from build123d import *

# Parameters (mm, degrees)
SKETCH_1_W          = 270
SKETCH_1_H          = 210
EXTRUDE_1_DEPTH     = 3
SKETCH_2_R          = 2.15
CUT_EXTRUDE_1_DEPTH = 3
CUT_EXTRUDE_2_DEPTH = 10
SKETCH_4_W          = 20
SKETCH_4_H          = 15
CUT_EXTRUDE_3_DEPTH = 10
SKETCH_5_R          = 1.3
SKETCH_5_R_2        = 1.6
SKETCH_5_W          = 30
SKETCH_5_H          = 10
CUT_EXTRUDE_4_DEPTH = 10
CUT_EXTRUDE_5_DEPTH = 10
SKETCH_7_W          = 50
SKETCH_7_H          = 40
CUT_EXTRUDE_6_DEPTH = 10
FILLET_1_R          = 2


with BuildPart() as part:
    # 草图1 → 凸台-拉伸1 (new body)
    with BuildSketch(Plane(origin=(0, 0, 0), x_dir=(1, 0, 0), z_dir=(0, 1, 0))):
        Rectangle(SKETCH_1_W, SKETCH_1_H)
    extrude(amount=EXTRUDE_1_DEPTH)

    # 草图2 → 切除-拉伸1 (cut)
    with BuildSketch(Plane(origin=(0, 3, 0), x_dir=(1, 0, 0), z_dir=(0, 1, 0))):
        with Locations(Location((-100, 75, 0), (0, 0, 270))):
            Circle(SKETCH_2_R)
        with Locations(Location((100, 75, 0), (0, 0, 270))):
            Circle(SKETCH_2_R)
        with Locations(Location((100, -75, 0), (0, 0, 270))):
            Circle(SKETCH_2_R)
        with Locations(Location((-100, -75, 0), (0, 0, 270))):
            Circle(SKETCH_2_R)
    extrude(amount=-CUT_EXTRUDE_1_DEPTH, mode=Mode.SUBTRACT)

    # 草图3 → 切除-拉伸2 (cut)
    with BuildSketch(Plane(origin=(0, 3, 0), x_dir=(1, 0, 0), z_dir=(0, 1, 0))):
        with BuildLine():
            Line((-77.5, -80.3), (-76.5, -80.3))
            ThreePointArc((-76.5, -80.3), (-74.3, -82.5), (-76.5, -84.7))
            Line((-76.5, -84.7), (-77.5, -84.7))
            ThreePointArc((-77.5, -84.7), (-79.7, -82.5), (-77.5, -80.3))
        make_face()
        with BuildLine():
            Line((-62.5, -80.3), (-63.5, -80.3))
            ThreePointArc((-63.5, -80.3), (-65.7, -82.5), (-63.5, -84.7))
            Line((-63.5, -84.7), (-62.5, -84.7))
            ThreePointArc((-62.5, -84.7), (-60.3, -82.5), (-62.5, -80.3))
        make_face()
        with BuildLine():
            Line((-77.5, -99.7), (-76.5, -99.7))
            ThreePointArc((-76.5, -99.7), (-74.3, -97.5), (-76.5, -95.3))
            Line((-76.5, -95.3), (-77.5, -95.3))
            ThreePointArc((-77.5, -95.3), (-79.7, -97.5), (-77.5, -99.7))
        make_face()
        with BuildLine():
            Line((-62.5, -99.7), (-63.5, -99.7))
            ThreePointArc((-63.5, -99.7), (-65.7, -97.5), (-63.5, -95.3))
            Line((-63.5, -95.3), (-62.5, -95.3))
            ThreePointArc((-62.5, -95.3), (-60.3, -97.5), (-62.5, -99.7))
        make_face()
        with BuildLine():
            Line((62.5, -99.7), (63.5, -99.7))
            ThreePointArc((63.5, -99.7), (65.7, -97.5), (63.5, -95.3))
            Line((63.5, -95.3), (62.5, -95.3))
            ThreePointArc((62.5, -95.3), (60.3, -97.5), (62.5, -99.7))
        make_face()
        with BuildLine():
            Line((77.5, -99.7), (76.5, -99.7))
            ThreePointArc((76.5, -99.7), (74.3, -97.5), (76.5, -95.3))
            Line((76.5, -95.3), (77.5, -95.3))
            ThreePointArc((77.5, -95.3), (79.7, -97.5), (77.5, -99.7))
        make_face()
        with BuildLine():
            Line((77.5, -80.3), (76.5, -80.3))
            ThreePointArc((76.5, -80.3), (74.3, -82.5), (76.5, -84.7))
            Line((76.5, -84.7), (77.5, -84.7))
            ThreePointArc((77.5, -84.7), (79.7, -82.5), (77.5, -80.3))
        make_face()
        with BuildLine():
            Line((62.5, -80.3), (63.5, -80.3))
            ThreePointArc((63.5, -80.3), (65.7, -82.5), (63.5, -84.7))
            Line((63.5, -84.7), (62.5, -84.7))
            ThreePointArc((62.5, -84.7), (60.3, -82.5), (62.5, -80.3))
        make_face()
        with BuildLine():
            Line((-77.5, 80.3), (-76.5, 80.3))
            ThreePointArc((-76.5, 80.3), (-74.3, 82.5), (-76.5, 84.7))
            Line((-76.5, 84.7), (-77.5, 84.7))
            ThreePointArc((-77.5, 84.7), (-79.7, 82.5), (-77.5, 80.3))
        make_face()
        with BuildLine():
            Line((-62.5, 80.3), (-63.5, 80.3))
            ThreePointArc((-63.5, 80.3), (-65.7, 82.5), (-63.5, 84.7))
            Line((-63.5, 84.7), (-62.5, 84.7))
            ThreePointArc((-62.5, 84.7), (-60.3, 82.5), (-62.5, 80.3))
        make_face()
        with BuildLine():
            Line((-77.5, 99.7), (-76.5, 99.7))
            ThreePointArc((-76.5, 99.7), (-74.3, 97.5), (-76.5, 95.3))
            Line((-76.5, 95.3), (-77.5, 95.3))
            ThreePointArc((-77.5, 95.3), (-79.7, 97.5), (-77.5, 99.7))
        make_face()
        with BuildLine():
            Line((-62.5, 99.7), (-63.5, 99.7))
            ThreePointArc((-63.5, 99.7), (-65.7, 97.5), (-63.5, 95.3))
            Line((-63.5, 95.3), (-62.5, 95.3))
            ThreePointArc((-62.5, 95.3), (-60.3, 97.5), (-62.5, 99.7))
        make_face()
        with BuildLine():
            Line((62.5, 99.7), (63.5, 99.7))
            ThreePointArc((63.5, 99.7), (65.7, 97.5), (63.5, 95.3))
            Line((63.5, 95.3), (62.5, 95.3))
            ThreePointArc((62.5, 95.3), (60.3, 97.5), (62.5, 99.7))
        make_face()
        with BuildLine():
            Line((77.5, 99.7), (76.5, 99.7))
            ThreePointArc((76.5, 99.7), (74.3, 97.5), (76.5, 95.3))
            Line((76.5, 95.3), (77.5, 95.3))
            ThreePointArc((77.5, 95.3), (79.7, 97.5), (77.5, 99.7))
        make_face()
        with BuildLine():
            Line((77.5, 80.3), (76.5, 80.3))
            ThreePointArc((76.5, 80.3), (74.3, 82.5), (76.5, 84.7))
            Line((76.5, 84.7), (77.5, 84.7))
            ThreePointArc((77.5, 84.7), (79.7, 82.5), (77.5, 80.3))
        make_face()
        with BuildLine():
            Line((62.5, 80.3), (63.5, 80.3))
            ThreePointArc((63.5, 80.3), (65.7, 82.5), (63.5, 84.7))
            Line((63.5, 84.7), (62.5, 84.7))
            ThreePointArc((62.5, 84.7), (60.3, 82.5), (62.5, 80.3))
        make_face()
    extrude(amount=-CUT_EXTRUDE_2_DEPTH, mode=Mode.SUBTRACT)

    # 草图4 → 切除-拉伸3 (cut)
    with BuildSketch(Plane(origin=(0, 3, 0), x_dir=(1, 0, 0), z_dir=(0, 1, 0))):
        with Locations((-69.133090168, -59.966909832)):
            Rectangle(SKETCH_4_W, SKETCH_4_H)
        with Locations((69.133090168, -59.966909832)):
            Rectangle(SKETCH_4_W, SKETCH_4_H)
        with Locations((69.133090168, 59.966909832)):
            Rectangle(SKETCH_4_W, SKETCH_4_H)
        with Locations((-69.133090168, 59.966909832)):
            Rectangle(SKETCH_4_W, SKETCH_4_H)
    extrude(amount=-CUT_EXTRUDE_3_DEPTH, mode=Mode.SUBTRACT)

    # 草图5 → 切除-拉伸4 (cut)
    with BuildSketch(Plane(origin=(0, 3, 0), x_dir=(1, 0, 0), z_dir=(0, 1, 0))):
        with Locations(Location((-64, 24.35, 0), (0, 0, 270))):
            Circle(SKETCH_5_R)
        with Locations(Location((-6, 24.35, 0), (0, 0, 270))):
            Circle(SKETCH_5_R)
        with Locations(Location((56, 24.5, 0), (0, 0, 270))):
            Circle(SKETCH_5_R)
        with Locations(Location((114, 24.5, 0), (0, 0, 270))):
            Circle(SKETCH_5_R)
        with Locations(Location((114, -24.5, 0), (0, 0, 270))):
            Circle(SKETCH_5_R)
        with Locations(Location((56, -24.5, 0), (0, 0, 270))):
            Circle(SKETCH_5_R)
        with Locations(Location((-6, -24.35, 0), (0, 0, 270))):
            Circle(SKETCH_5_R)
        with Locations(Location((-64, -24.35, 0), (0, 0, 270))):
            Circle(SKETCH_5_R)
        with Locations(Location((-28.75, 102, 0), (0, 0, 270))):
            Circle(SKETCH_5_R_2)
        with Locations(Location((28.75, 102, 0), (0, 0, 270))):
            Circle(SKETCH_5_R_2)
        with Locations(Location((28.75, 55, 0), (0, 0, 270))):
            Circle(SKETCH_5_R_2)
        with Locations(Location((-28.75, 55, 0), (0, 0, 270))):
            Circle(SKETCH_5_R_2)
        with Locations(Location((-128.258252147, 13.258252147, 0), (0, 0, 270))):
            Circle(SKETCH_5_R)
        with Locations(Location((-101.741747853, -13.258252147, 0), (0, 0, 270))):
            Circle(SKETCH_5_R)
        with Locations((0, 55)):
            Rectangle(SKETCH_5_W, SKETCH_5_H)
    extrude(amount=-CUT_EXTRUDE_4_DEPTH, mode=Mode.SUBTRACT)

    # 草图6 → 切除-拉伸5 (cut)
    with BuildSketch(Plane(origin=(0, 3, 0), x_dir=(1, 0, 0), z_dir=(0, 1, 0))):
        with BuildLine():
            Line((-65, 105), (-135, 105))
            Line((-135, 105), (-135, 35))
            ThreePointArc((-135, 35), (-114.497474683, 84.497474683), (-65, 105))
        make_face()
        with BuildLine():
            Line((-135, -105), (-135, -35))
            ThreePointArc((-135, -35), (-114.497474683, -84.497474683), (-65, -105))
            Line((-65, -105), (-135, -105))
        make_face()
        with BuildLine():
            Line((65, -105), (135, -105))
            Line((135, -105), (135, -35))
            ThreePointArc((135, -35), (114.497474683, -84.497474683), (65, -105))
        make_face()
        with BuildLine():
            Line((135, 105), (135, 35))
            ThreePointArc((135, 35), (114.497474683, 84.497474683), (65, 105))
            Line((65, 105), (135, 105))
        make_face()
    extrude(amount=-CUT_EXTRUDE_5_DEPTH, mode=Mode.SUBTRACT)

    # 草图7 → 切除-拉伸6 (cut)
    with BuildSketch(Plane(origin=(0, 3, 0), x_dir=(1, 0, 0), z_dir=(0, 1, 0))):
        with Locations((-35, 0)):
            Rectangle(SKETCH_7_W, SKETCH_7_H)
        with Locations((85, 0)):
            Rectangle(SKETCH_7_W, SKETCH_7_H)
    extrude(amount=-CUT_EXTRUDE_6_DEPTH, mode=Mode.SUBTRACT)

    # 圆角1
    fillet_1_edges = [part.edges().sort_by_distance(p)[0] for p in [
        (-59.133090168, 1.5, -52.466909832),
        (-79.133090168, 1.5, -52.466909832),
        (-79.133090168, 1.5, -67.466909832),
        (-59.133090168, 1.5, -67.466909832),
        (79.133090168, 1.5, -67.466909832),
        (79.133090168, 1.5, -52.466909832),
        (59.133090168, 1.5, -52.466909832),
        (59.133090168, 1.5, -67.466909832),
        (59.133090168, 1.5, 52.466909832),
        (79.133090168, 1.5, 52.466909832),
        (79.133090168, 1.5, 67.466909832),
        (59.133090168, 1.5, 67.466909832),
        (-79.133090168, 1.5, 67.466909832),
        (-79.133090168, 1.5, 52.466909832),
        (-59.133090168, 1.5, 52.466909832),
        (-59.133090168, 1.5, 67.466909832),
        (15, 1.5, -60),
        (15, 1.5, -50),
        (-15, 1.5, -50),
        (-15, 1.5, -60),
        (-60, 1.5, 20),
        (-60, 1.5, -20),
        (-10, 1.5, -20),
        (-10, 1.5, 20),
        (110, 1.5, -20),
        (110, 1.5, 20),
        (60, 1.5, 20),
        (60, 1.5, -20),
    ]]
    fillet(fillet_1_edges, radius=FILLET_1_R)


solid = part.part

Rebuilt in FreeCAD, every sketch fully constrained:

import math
import FreeCAD as App
import Part
import Sketcher


def edges_at(feature, points):
    """Names of the edges that pass closest to the given points."""
    edges = feature.Shape.Edges
    near = lambda p: min(range(len(edges)), key=lambda i: edges[i].distToShape(Part.Vertex(*p))[0])
    return sorted({f"Edge{near(p) + 1}" for p in points})


def add_polygon(sketch, points):
    """Adds a closed chain of lines whose ends are joined by coincident constraints."""
    first, n = sketch.GeometryCount, len(points)
    for a, b in zip(points, points[1:] + points[:1]):
        sketch.addGeometry(Part.LineSegment(App.Vector(*a, 0), App.Vector(*b, 0)), False)
    for i in range(n):
        sketch.addConstraint(Sketcher.Constraint("Coincident", first + i, 2, first + (i + 1) % n, 1))

doc = App.newDocument("Part")
body = doc.addObject("PartDesign::Body", "Body")

sketch1 = body.newObject("Sketcher::SketchObject", "Sketch")
sketch1.AttachmentSupport = (doc.getObject("XZ_Plane"), [""])
sketch1.MapMode = "FlatFace"
add_polygon(sketch1, [(-135, -105), (-135, 105), (135, 105), (135, -105)])
sketch1.addConstraint([
    Sketcher.Constraint("Vertical", 0),
    Sketcher.Constraint("Horizontal", 1),
    Sketcher.Constraint("Vertical", 2),
    Sketcher.Constraint("Horizontal", 3),
    Sketcher.Constraint("Symmetric", 0, 2, 2, 2, -1, 1),
    Sketcher.Constraint("DistanceX", 1, 1, 1, 2, 270.0),
    Sketcher.Constraint("DistanceY", 0, 1, 0, 2, 210.0),
])
pad1 = body.newObject("PartDesign::Pad", "Pad")
pad1.Profile = sketch1
pad1.Length = 3
pad1.Reversed = True

sketch2 = body.newObject("Sketcher::SketchObject", "Sketch001")
sketch2.AttachmentSupport = (doc.getObject("XZ_Plane"), [""])
sketch2.MapMode = "FlatFace"
sketch2.AttachmentOffset = App.Placement(App.Vector(0, 0, -3), App.Rotation())
sketch2.addGeometry([
    Part.Circle(App.Vector(-100, -75, 0), App.Vector(0, 0, 1), 2.1),
    Part.Circle(App.Vector(100, -75, 0), App.Vector(0, 0, 1), 2.1),
    Part.Circle(App.Vector(100, 75, 0), App.Vector(0, 0, 1), 2.1),
    Part.Circle(App.Vector(-100, 75, 0), App.Vector(0, 0, 1), 2.1),
], False)
sketch2.addConstraint([
    Sketcher.Constraint("Equal", 0, 1),
    Sketcher.Constraint("Equal", 1, 2),
    Sketcher.Constraint("Equal", 2, 3),
    Sketcher.Constraint("Symmetric", 0, 3, 2, 3, -1, 1),
    Sketcher.Constraint("Symmetric", 1, 3, 3, 3, -1, 1),
    Sketcher.Constraint("Symmetric", 0, 3, 1, 3, -2),
    Sketcher.Constraint("Diameter", 0, 4.3),
    Sketcher.Constraint("DistanceX", 0, 3, -1, 1, 100.0),
    Sketcher.Constraint("DistanceY", 0, 3, -1, 1, 75.0),
])
pocket1 = body.newObject("PartDesign::Pocket", "Pocket")
pocket1.Profile = sketch2
pocket1.Length = 3
pocket1.Reversed = True

sketch3 = body.newObject("Sketcher::SketchObject", "Sketch002")
sketch3.AttachmentSupport = (doc.getObject("XZ_Plane"), [""])
sketch3.MapMode = "FlatFace"
sketch3.AttachmentOffset = App.Placement(App.Vector(0, 0, -3), App.Rotation())
sketch3.addGeometry([
    Part.LineSegment(App.Vector(-76.5, 80.3, 0), App.Vector(-77.5, 80.3, 0)),
    Part.ArcOfCircle(Part.Circle(App.Vector(-77.5, 82.5, 0), App.Vector(0, 0, 1), 2.2), math.radians(90), math.radians(270)),
    Part.LineSegment(App.Vector(-77.5, 84.7, 0), App.Vector(-76.5, 84.7, 0)),
    Part.ArcOfCircle(Part.Circle(App.Vector(-76.5, 82.5, 0), App.Vector(0, 0, 1), 2.2), math.radians(-90), math.radians(90)),
    Part.LineSegment(App.Vector(-62.5, 80.3, 0), App.Vector(-63.5, 80.3, 0)),
    Part.ArcOfCircle(Part.Circle(App.Vector(-63.5, 82.5, 0), App.Vector(0, 0, 1), 2.2), math.radians(90), math.radians(270)),
    Part.LineSegment(App.Vector(-63.5, 84.7, 0), App.Vector(-62.5, 84.7, 0)),
    Part.ArcOfCircle(Part.Circle(App.Vector(-62.5, 82.5, 0), App.Vector(0, 0, 1), 2.2), math.radians(-90), math.radians(90)),
    Part.LineSegment(App.Vector(-77.5, 99.7, 0), App.Vector(-76.5, 99.7, 0)),
    Part.ArcOfCircle(Part.Circle(App.Vector(-76.5, 97.5, 0), App.Vector(0, 0, 1), 2.2), math.radians(-90), math.radians(90)),
    Part.LineSegment(App.Vector(-76.5, 95.3, 0), App.Vector(-77.5, 95.3, 0)),
    Part.ArcOfCircle(Part.Circle(App.Vector(-77.5, 97.5, 0), App.Vector(0, 0, 1), 2.2), math.radians(90), math.radians(270)),
    Part.LineSegment(App.Vector(-63.5, 99.7, 0), App.Vector(-62.5, 99.7, 0)),
    Part.ArcOfCircle(Part.Circle(App.Vector(-62.5, 97.5, 0), App.Vector(0, 0, 1), 2.2), math.radians(-90), math.radians(90)),
    Part.LineSegment(App.Vector(-62.5, 95.3, 0), App.Vector(-63.5, 95.3, 0)),
    Part.ArcOfCircle(Part.Circle(App.Vector(-63.5, 97.5, 0), App.Vector(0, 0, 1), 2.2), math.radians(90), math.radians(270)),
    Part.LineSegment(App.Vector(62.5, 99.7, 0), App.Vector(63.5, 99.7, 0)),
    Part.ArcOfCircle(Part.Circle(App.Vector(63.5, 97.5, 0), App.Vector(0, 0, 1), 2.2), math.radians(-90), math.radians(90)),
    Part.LineSegment(App.Vector(63.5, 95.3, 0), App.Vector(62.5, 95.3, 0)),
    Part.ArcOfCircle(Part.Circle(App.Vector(62.5, 97.5, 0), App.Vector(0, 0, 1), 2.2), math.radians(90), math.radians(270)),
    Part.LineSegment(App.Vector(76.5, 99.7, 0), App.Vector(77.5, 99.7, 0)),
    Part.ArcOfCircle(Part.Circle(App.Vector(77.5, 97.5, 0), App.Vector(0, 0, 1), 2.2), math.radians(-90), math.radians(90)),
    Part.LineSegment(App.Vector(77.5, 95.3, 0), App.Vector(76.5, 95.3, 0)),
    Part.ArcOfCircle(Part.Circle(App.Vector(76.5, 97.5, 0), App.Vector(0, 0, 1), 2.2), math.radians(90), math.radians(270)),
    Part.LineSegment(App.Vector(77.5, 80.3, 0), App.Vector(76.5, 80.3, 0)),
    Part.ArcOfCircle(Part.Circle(App.Vector(76.5, 82.5, 0), App.Vector(0, 0, 1), 2.2), math.radians(90), math.radians(270)),
    Part.LineSegment(App.Vector(76.5, 84.7, 0), App.Vector(77.5, 84.7, 0)),
    Part.ArcOfCircle(Part.Circle(App.Vector(77.5, 82.5, 0), App.Vector(0, 0, 1), 2.2), math.radians(-90), math.radians(90)),
    Part.LineSegment(App.Vector(63.5, 80.3, 0), App.Vector(62.5, 80.3, 0)),
    Part.ArcOfCircle(Part.Circle(App.Vector(62.5, 82.5, 0), App.Vector(0, 0, 1), 2.2), math.radians(90), math.radians(270)),
    Part.LineSegment(App.Vector(62.5, 84.7, 0), App.Vector(63.5, 84.7, 0)),
    Part.ArcOfCircle(Part.Circle(App.Vector(63.5, 82.5, 0), App.Vector(0, 0, 1), 2.2), math.radians(-90), math.radians(90)),
    Part.LineSegment(App.Vector(-77.5, -80.3, 0), App.Vector(-76.5, -80.3, 0)),
    Part.ArcOfCircle(Part.Circle(App.Vector(-76.5, -82.5, 0), App.Vector(0, 0, 1), 2.2), math.radians(-90), math.radians(90)),
    Part.LineSegment(App.Vector(-76.5, -84.7, 0), App.Vector(-77.5, -84.7, 0)),
    Part.ArcOfCircle(Part.Circle(App.Vector(-77.5, -82.5, 0), App.Vector(0, 0, 1), 2.2), math.radians(90), math.radians(270)),
    Part.LineSegment(App.Vector(-63.5, -80.3, 0), App.Vector(-62.5, -80.3, 0)),
    Part.ArcOfCircle(Part.Circle(App.Vector(-62.5, -82.5, 0), App.Vector(0, 0, 1), 2.2), math.radians(-90), math.radians(90)),
    Part.LineSegment(App.Vector(-62.5, -84.7, 0), App.Vector(-63.5, -84.7, 0)),
    Part.ArcOfCircle(Part.Circle(App.Vector(-63.5, -82.5, 0), App.Vector(0, 0, 1), 2.2), math.radians(90), math.radians(270)),
    Part.LineSegment(App.Vector(-76.5, -99.7, 0), App.Vector(-77.5, -99.7, 0)),
    Part.ArcOfCircle(Part.Circle(App.Vector(-77.5, -97.5, 0), App.Vector(0, 0, 1), 2.2), math.radians(90), math.radians(270)),
    Part.LineSegment(App.Vector(-77.5, -95.3, 0), App.Vector(-76.5, -95.3, 0)),
    Part.ArcOfCircle(Part.Circle(App.Vector(-76.5, -97.5, 0), App.Vector(0, 0, 1), 2.2), math.radians(-90), math.radians(90)),
    Part.LineSegment(App.Vector(-62.5, -99.7, 0), App.Vector(-63.5, -99.7, 0)),
    Part.ArcOfCircle(Part.Circle(App.Vector(-63.5, -97.5, 0), App.Vector(0, 0, 1), 2.2), math.radians(90), math.radians(270)),
    Part.LineSegment(App.Vector(-63.5, -95.3, 0), App.Vector(-62.5, -95.3, 0)),
    Part.ArcOfCircle(Part.Circle(App.Vector(-62.5, -97.5, 0), App.Vector(0, 0, 1), 2.2), math.radians(-90), math.radians(90)),
    Part.LineSegment(App.Vector(63.5, -99.7, 0), App.Vector(62.5, -99.7, 0)),
    Part.ArcOfCircle(Part.Circle(App.Vector(62.5, -97.5, 0), App.Vector(0, 0, 1), 2.2), math.radians(90), math.radians(270)),
    Part.LineSegment(App.Vector(62.5, -95.3, 0), App.Vector(63.5, -95.3, 0)),
    Part.ArcOfCircle(Part.Circle(App.Vector(63.5, -97.5, 0), App.Vector(0, 0, 1), 2.2), math.radians(-90), math.radians(90)),
    Part.LineSegment(App.Vector(77.5, -99.7, 0), App.Vector(76.5, -99.7, 0)),
    Part.ArcOfCircle(Part.Circle(App.Vector(76.5, -97.5, 0), App.Vector(0, 0, 1), 2.2), math.radians(90), math.radians(270)),
    Part.LineSegment(App.Vector(76.5, -95.3, 0), App.Vector(77.5, -95.3, 0)),
    Part.ArcOfCircle(Part.Circle(App.Vector(77.5, -97.5, 0), App.Vector(0, 0, 1), 2.2), math.radians(-90), math.radians(90)),
    Part.LineSegment(App.Vector(76.5, -80.3, 0), App.Vector(77.5, -80.3, 0)),
    Part.ArcOfCircle(Part.Circle(App.Vector(77.5, -82.5, 0), App.Vector(0, 0, 1), 2.2), math.radians(-90), math.radians(90)),
    Part.LineSegment(App.Vector(77.5, -84.7, 0), App.Vector(76.5, -84.7, 0)),
    Part.ArcOfCircle(Part.Circle(App.Vector(76.5, -82.5, 0), App.Vector(0, 0, 1), 2.2), math.radians(90), math.radians(270)),
    Part.LineSegment(App.Vector(62.5, -80.3, 0), App.Vector(63.5, -80.3, 0)),
    Part.ArcOfCircle(Part.Circle(App.Vector(63.5, -82.5, 0), App.Vector(0, 0, 1), 2.2), math.radians(-90), math.radians(90)),
    Part.LineSegment(App.Vector(63.5, -84.7, 0), App.Vector(62.5, -84.7, 0)),
    Part.ArcOfCircle(Part.Circle(App.Vector(62.5, -82.5, 0), App.Vector(0, 0, 1), 2.2), math.radians(90), math.radians(270)),
], False)
sketch3.addConstraint([
    Sketcher.Constraint("Tangent", 0, 2, 1, 2),
    Sketcher.Constraint("Tangent", 1, 1, 2, 1),
    Sketcher.Constraint("Tangent", 2, 2, 3, 2),
    Sketcher.Constraint("Tangent", 3, 1, 0, 1),
    Sketcher.Constraint("Tangent", 4, 2, 5, 2),
    Sketcher.Constraint("Tangent", 5, 1, 6, 1),
    Sketcher.Constraint("Tangent", 6, 2, 7, 2),
    Sketcher.Constraint("Tangent", 7, 1, 4, 1),
    Sketcher.Constraint("Tangent", 8, 2, 9, 2),
    Sketcher.Constraint("Tangent", 9, 1, 10, 1),
    Sketcher.Constraint("Tangent", 10, 2, 11, 2),
    Sketcher.Constraint("Tangent", 11, 1, 8, 1),
    Sketcher.Constraint("Tangent", 12, 2, 13, 2),
    Sketcher.Constraint("Tangent", 13, 1, 14, 1),
    Sketcher.Constraint("Tangent", 14, 2, 15, 2),
    Sketcher.Constraint("Tangent", 15, 1, 12, 1),
    Sketcher.Constraint("Tangent", 16, 2, 17, 2),
    Sketcher.Constraint("Tangent", 17, 1, 18, 1),
    Sketcher.Constraint("Tangent", 18, 2, 19, 2),
    Sketcher.Constraint("Tangent", 19, 1, 16, 1),
    Sketcher.Constraint("Tangent", 20, 2, 21, 2),
    Sketcher.Constraint("Tangent", 21, 1, 22, 1),
    Sketcher.Constraint("Tangent", 22, 2, 23, 2),
    Sketcher.Constraint("Tangent", 23, 1, 20, 1),
    Sketcher.Constraint("Tangent", 24, 2, 25, 2),
    Sketcher.Constraint("Tangent", 25, 1, 26, 1),
    Sketcher.Constraint("Tangent", 26, 2, 27, 2),
    Sketcher.Constraint("Tangent", 27, 1, 24, 1),
    Sketcher.Constraint("Tangent", 28, 2, 29, 2),
    Sketcher.Constraint("Tangent", 29, 1, 30, 1),
    Sketcher.Constraint("Tangent", 30, 2, 31, 2),
    Sketcher.Constraint("Tangent", 31, 1, 28, 1),
    Sketcher.Constraint("Tangent", 32, 2, 33, 2),
    Sketcher.Constraint("Tangent", 33, 1, 34, 1),
    Sketcher.Constraint("Tangent", 34, 2, 35, 2),
    Sketcher.Constraint("Tangent", 35, 1, 32, 1),
    Sketcher.Constraint("Tangent", 36, 2, 37, 2),
    Sketcher.Constraint("Tangent", 37, 1, 38, 1),
    Sketcher.Constraint("Tangent", 38, 2, 39, 2),
    Sketcher.Constraint("Tangent", 39, 1, 36, 1),
    Sketcher.Constraint("Tangent", 40, 2, 41, 2),
    Sketcher.Constraint("Tangent", 41, 1, 42, 1),
    Sketcher.Constraint("Tangent", 42, 2, 43, 2),
    Sketcher.Constraint("Tangent", 43, 1, 40, 1),
    Sketcher.Constraint("Tangent", 44, 2, 45, 2),
    Sketcher.Constraint("Tangent", 45, 1, 46, 1),
    Sketcher.Constraint("Tangent", 46, 2, 47, 2),
    Sketcher.Constraint("Tangent", 47, 1, 44, 1),
    Sketcher.Constraint("Tangent", 48, 2, 49, 2),
    Sketcher.Constraint("Tangent", 49, 1, 50, 1),
    Sketcher.Constraint("Tangent", 50, 2, 51, 2),
    Sketcher.Constraint("Tangent", 51, 1, 48, 1),
    Sketcher.Constraint("Tangent", 52, 2, 53, 2),
    Sketcher.Constraint("Tangent", 53, 1, 54, 1),
    Sketcher.Constraint("Tangent", 54, 2, 55, 2),
    Sketcher.Constraint("Tangent", 55, 1, 52, 1),
    Sketcher.Constraint("Tangent", 56, 2, 57, 2),
    Sketcher.Constraint("Tangent", 57, 1, 58, 1),
    Sketcher.Constraint("Tangent", 58, 2, 59, 2),
    Sketcher.Constraint("Tangent", 59, 1, 56, 1),
    Sketcher.Constraint("Tangent", 60, 2, 61, 2),
    Sketcher.Constraint("Tangent", 61, 1, 62, 1),
    Sketcher.Constraint("Tangent", 62, 2, 63, 2),
    Sketcher.Constraint("Tangent", 63, 1, 60, 1),
    Sketcher.Constraint("Horizontal", 0),
    Sketcher.Constraint("Horizontal", 2),
    Sketcher.Constraint("Horizontal", 4),
    Sketcher.Constraint("Horizontal", 6),
    Sketcher.Constraint("Horizontal", 8),
    Sketcher.Constraint("Horizontal", 10),
    Sketcher.Constraint("Horizontal", 12),
    Sketcher.Constraint("Horizontal", 14),
    Sketcher.Constraint("Horizontal", 16),
    Sketcher.Constraint("Horizontal", 18),
    Sketcher.Constraint("Horizontal", 20),
    Sketcher.Constraint("Horizontal", 22),
    Sketcher.Constraint("Horizontal", 24),
    Sketcher.Constraint("Horizontal", 26),
    Sketcher.Constraint("Horizontal", 28),
    Sketcher.Constraint("Horizontal", 30),
    Sketcher.Constraint("Horizontal", 32),
    Sketcher.Constraint("Horizontal", 34),
    Sketcher.Constraint("Horizontal", 36),
    Sketcher.Constraint("Horizontal", 38),
    Sketcher.Constraint("Horizontal", 40),
    Sketcher.Constraint("Horizontal", 42),
    Sketcher.Constraint("Horizontal", 44),
    Sketcher.Constraint("Horizontal", 46),
    Sketcher.Constraint("Horizontal", 48),
    Sketcher.Constraint("Horizontal", 50),
    Sketcher.Constraint("Horizontal", 52),
    Sketcher.Constraint("Horizontal", 54),
    Sketcher.Constraint("Horizontal", 56),
    Sketcher.Constraint("Horizontal", 58),
    Sketcher.Constraint("Horizontal", 60),
    Sketcher.Constraint("Horizontal", 62),
    Sketcher.Constraint("Equal", 3, 5),
    Sketcher.Constraint("Equal", 7, 9),
    Sketcher.Constraint("Equal", 11, 13),
    Sketcher.Constraint("Equal", 15, 17),
    Sketcher.Constraint("Equal", 19, 21),
    Sketcher.Constraint("Equal", 23, 25),
    Sketcher.Constraint("Equal", 27, 29),
    Sketcher.Constraint("Equal", 31, 33),
    Sketcher.Constraint("Equal", 35, 37),
    Sketcher.Constraint("Equal", 39, 41),
    Sketcher.Constraint("Equal", 43, 45),
    Sketcher.Constraint("Equal", 47, 49),
    Sketcher.Constraint("Equal", 51, 53),
    Sketcher.Constraint("Equal", 55, 57),
    Sketcher.Constraint("Equal", 59, 61),
    Sketcher.Constraint("Symmetric", 25, 3, 33, 3, -1, 1),
    Sketcher.Constraint("Symmetric", 29, 3, 37, 3, -1, 1),
    Sketcher.Constraint("Symmetric", 21, 3, 41, 3, -1, 1),
    Sketcher.Constraint("Symmetric", 17, 3, 45, 3, -1, 1),
    Sketcher.Constraint("Symmetric", 13, 3, 49, 3, -1, 1),
    Sketcher.Constraint("Symmetric", 9, 3, 53, 3, -1, 1),
    Sketcher.Constraint("Symmetric", 1, 3, 57, 3, -1, 1),
    Sketcher.Constraint("Symmetric", 5, 3, 61, 3, -1, 1),
    Sketcher.Constraint("Symmetric", 15, 3, 17, 3, -2),
    Sketcher.Constraint("Symmetric", 11, 3, 21, 3, -2),
    Sketcher.Constraint("Symmetric", 3, 3, 25, 3, -2),
    Sketcher.Constraint("Symmetric", 7, 3, 29, 3, -2),
    Sketcher.Constraint("Horizontal", 3, 3, 5, 3),
    Sketcher.Constraint("Horizontal", 11, 3, 13, 3),
    Sketcher.Constraint("Vertical", 3, 3, 9, 3),
    Sketcher.Constraint("Vertical", 1, 3, 11, 3),
    Sketcher.Constraint("Vertical", 7, 3, 13, 3),
    Sketcher.Constraint("Vertical", 5, 3, 15, 3),
    Sketcher.Constraint("Vertical", 23, 3, 25, 3),
    Sketcher.Constraint("Vertical", 21, 3, 27, 3),
    Sketcher.Constraint("Vertical", 19, 3, 29, 3),
    Sketcher.Constraint("Vertical", 17, 3, 31, 3),
    Sketcher.Constraint("Vertical", 11, 3, 35, 3),
    Sketcher.Constraint("Vertical", 15, 3, 39, 3),
    Sketcher.Constraint("Vertical", 33, 3, 43, 3),
    Sketcher.Constraint("Vertical", 37, 3, 47, 3),
    Sketcher.Constraint("Vertical", 31, 3, 51, 3),
    Sketcher.Constraint("Vertical", 27, 3, 55, 3),
    Sketcher.Constraint("Vertical", 53, 3, 59, 3),
    Sketcher.Constraint("Vertical", 49, 3, 63, 3),
    Sketcher.Constraint("Equal", 2, 4),
    Sketcher.Constraint("Radius", 1, 2.2),
    Sketcher.Constraint("DistanceX", 0, 2, 0, 1, 1.0),
    Sketcher.Constraint("DistanceX", 1, 3, -1, 1, 77.5),
    Sketcher.Constraint("DistanceY", -1, 1, 1, 3, 82.5),
    Sketcher.Constraint("DistanceX", 5, 3, -1, 1, 63.5),
    Sketcher.Constraint("DistanceY", -1, 1, 9, 3, 97.5),
])
pocket2 = body.newObject("PartDesign::Pocket", "Pocket001")
pocket2.Profile = sketch3
pocket2.Length = 10
pocket2.Reversed = True

sketch4 = body.newObject("Sketcher::SketchObject", "Sketch003")
sketch4.AttachmentSupport = (doc.getObject("XZ_Plane"), [""])
sketch4.MapMode = "FlatFace"
sketch4.AttachmentOffset = App.Placement(App.Vector(0, 0, -3), App.Rotation())
add_polygon(sketch4, [(-79, 52), (-79, 67), (-59, 67), (-59, 52)])
add_polygon(sketch4, [(59, 52), (59, 67), (79, 67), (79, 52)])
add_polygon(sketch4, [(59, -67), (59, -52), (79, -52), (79, -67)])
add_polygon(sketch4, [(-79, -67), (-79, -52), (-59, -52), (-59, -67)])
sketch4.addConstraint([
    Sketcher.Constraint("Vertical", 0),
    Sketcher.Constraint("Horizontal", 1),
    Sketcher.Constraint("Vertical", 2),
    Sketcher.Constraint("Horizontal", 3),
    Sketcher.Constraint("Vertical", 4),
    Sketcher.Constraint("Horizontal", 5),
    Sketcher.Constraint("Vertical", 6),
    Sketcher.Constraint("Horizontal", 7),
    Sketcher.Constraint("Vertical", 8),
    Sketcher.Constraint("Horizontal", 9),
    Sketcher.Constraint("Vertical", 10),
    Sketcher.Constraint("Horizontal", 11),
    Sketcher.Constraint("Vertical", 12),
    Sketcher.Constraint("Horizontal", 13),
    Sketcher.Constraint("Vertical", 14),
    Sketcher.Constraint("Horizontal", 15),
    Sketcher.Constraint("Symmetric", 2, 2, 8, 2, -1, 1),
    Sketcher.Constraint("Symmetric", 0, 2, 10, 2, -1, 1),
    Sketcher.Constraint("Symmetric", 6, 2, 12, 2, -1, 1),
    Sketcher.Constraint("Symmetric", 4, 2, 14, 2, -1, 1),
    Sketcher.Constraint("Symmetric", 1, 2, 4, 2, -2),
    Sketcher.Constraint("Symmetric", 3, 2, 6, 2, -2),
    Sketcher.Constraint("DistanceX", 1, 1, 1, 2, 20.0),
    Sketcher.Constraint("DistanceY", 0, 1, 0, 2, 15.0),
    Sketcher.Constraint("DistanceX", 0, 2, -1, 1, 79.13309),
    Sketcher.Constraint("DistanceY", -1, 1, 0, 2, 67.46691),
])
pocket3 = body.newObject("PartDesign::Pocket", "Pocket002")
pocket3.Profile = sketch4
pocket3.Length = 10
pocket3.Reversed = True

sketch5 = body.newObject("Sketcher::SketchObject", "Sketch004")
sketch5.AttachmentSupport = (doc.getObject("XZ_Plane"), [""])
sketch5.MapMode = "FlatFace"
sketch5.AttachmentOffset = App.Placement(App.Vector(0, 0, -3), App.Rotation())
sketch5.addGeometry(Part.Circle(App.Vector(-64, -24.4, 0), App.Vector(0, 0, 1), 1.3), False)
sketch5.addGeometry(Part.Circle(App.Vector(-6, -24.4, 0), App.Vector(0, 0, 1), 1.3), False)
sketch5.addGeometry(Part.Circle(App.Vector(56, -24.5, 0), App.Vector(0, 0, 1), 1.3), False)
sketch5.addGeometry(Part.Circle(App.Vector(114, -24.5, 0), App.Vector(0, 0, 1), 1.3), False)
sketch5.addGeometry(Part.Circle(App.Vector(114, 24.5, 0), App.Vector(0, 0, 1), 1.3), False)
sketch5.addGeometry(Part.Circle(App.Vector(56, 24.5, 0), App.Vector(0, 0, 1), 1.3), False)
sketch5.addGeometry(Part.Circle(App.Vector(-6, 24.4, 0), App.Vector(0, 0, 1), 1.3), False)
sketch5.addGeometry(Part.Circle(App.Vector(-64, 24.4, 0), App.Vector(0, 0, 1), 1.3), False)
sketch5.addGeometry(Part.Circle(App.Vector(-28.8, -102, 0), App.Vector(0, 0, 1), 1.6), False)
sketch5.addGeometry(Part.Circle(App.Vector(28.8, -102, 0), App.Vector(0, 0, 1), 1.6), False)
sketch5.addGeometry(Part.Circle(App.Vector(28.8, -55, 0), App.Vector(0, 0, 1), 1.6), False)
sketch5.addGeometry(Part.Circle(App.Vector(-28.8, -55, 0), App.Vector(0, 0, 1), 1.6), False)
sketch5.addGeometry(Part.Circle(App.Vector(-128.3, -13.3, 0), App.Vector(0, 0, 1), 1.3), False)
sketch5.addGeometry(Part.Circle(App.Vector(-101.7, 13.3, 0), App.Vector(0, 0, 1), 1.3), False)
add_polygon(sketch5, [(-15, -60), (-15, -50), (15, -50), (15, -60)])
sketch5.addConstraint([
    Sketcher.Constraint("Vertical", 14),
    Sketcher.Constraint("Horizontal", 15),
    Sketcher.Constraint("Vertical", 16),
    Sketcher.Constraint("Horizontal", 17),
    Sketcher.Constraint("Equal", 0, 1),
    Sketcher.Constraint("Equal", 1, 2),
    Sketcher.Constraint("Equal", 2, 3),
    Sketcher.Constraint("Equal", 3, 4),
    Sketcher.Constraint("Equal", 4, 5),
    Sketcher.Constraint("Equal", 5, 6),
    Sketcher.Constraint("Equal", 6, 7),
    Sketcher.Constraint("Equal", 8, 9),
    Sketcher.Constraint("Equal", 9, 10),
    Sketcher.Constraint("Equal", 10, 11),
    Sketcher.Constraint("Equal", 7, 12),
    Sketcher.Constraint("Equal", 12, 13),
    Sketcher.Constraint("Symmetric", 8, 3, 9, 3, -2),
    Sketcher.Constraint("Symmetric", 10, 3, 11, 3, -2),
    Sketcher.Constraint("Symmetric", 3, 3, 4, 3, -1),
    Sketcher.Constraint("Symmetric", 2, 3, 5, 3, -1),
    Sketcher.Constraint("Symmetric", 1, 3, 6, 3, -1),
    Sketcher.Constraint("Symmetric", 0, 3, 7, 3, -1),
    Sketcher.Constraint("Horizontal", 0, 3, 1, 3),
    Sketcher.Constraint("Horizontal", 2, 3, 3, 3),
    Sketcher.Constraint("Vertical", 9, 3, 10, 3),
    Sketcher.Constraint("Diameter", 0, 2.6),
    Sketcher.Constraint("Diameter", 8, 3.2),
    Sketcher.Constraint("DistanceX", 15, 1, 15, 2, 30.0),
    Sketcher.Constraint("DistanceY", 14, 1, 14, 2, 10.0),
    Sketcher.Constraint("DistanceX", 0, 3, -1, 1, 64.0),
    Sketcher.Constraint("DistanceX", 1, 3, -1, 1, 6.0),
    Sketcher.Constraint("DistanceX", -1, 1, 2, 3, 56.0),
    Sketcher.Constraint("DistanceX", -1, 1, 3, 3, 114.0),
    Sketcher.Constraint("DistanceY", 8, 3, -1, 1, 102.0),
    Sketcher.Constraint("DistanceY", 10, 3, -1, 1, 55.0),
    Sketcher.Constraint("DistanceX", 14, 2, -1, 1, 15.0),
    Sketcher.Constraint("DistanceY", 14, 2, -1, 1, 50.0),
    Sketcher.Constraint("DistanceY", 3, 3, 4, 3, 49.0),
    Sketcher.Constraint("DistanceY", 1, 3, 6, 3, 48.7),
    Sketcher.Constraint("DistanceX", 8, 3, 9, 3, 57.5),
    Sketcher.Constraint("DistanceX", 12, 3, -1, 1, 128.258252),
    Sketcher.Constraint("DistanceY", 12, 3, -1, 1, 13.258252),
    Sketcher.Constraint("DistanceX", 13, 3, -1, 1, 101.741748),
    Sketcher.Constraint("DistanceY", -1, 1, 13, 3, 13.258252),
])
pocket4 = body.newObject("PartDesign::Pocket", "Pocket003")
pocket4.Profile = sketch5
pocket4.Length = 10
pocket4.Reversed = True

sketch6 = body.newObject("Sketcher::SketchObject", "Sketch005")
sketch6.AttachmentSupport = (doc.getObject("XZ_Plane"), [""])
sketch6.MapMode = "FlatFace"
sketch6.AttachmentOffset = App.Placement(App.Vector(0, 0, -3), App.Rotation())
sketch6.addGeometry([
    Part.LineSegment(App.Vector(-65, -105, 0), App.Vector(-135, -105, 0)),
    Part.LineSegment(App.Vector(-135, -105, 0), App.Vector(-135, -35, 0)),
    Part.ArcOfCircle(Part.Circle(App.Vector(-65, -35, 0), App.Vector(0, 0, 1), 70), math.radians(180), math.radians(270)),
    Part.LineSegment(App.Vector(-135, 35, 0), App.Vector(-135, 105, 0)),
    Part.LineSegment(App.Vector(-135, 105, 0), App.Vector(-65, 105, 0)),
    Part.ArcOfCircle(Part.Circle(App.Vector(-65, 35, 0), App.Vector(0, 0, 1), 70), math.radians(90), math.radians(180)),
    Part.LineSegment(App.Vector(65, 105, 0), App.Vector(135, 105, 0)),
    Part.LineSegment(App.Vector(135, 105, 0), App.Vector(135, 35, 0)),
    Part.ArcOfCircle(Part.Circle(App.Vector(65, 35, 0), App.Vector(0, 0, 1), 70), math.radians(0), math.radians(90)),
    Part.LineSegment(App.Vector(135, -35, 0), App.Vector(135, -105, 0)),
    Part.LineSegment(App.Vector(135, -105, 0), App.Vector(65, -105, 0)),
    Part.ArcOfCircle(Part.Circle(App.Vector(65, -35, 0), App.Vector(0, 0, 1), 70), math.radians(-90), math.radians(0)),
], False)
sketch6.addConstraint([
    Sketcher.Constraint("Coincident", 0, 2, 1, 1),
    Sketcher.Constraint("Tangent", 1, 2, 2, 1),
    Sketcher.Constraint("Tangent", 2, 2, 0, 1),
    Sketcher.Constraint("Coincident", 3, 2, 4, 1),
    Sketcher.Constraint("Tangent", 4, 2, 5, 1),
    Sketcher.Constraint("Tangent", 5, 2, 3, 1),
    Sketcher.Constraint("Coincident", 6, 2, 7, 1),
    Sketcher.Constraint("Tangent", 7, 2, 8, 1),
    Sketcher.Constraint("Tangent", 8, 2, 6, 1),
    Sketcher.Constraint("Coincident", 9, 2, 10, 1),
    Sketcher.Constraint("Tangent", 10, 2, 11, 1),
    Sketcher.Constraint("Tangent", 11, 2, 9, 1),
    Sketcher.Constraint("Horizontal", 0),
    Sketcher.Constraint("Vertical", 1),
    Sketcher.Constraint("Vertical", 3),
    Sketcher.Constraint("Horizontal", 4),
    Sketcher.Constraint("Horizontal", 6),
    Sketcher.Constraint("Vertical", 7),
    Sketcher.Constraint("Vertical", 9),
    Sketcher.Constraint("Horizontal", 10),
    Sketcher.Constraint("Equal", 2, 5),
    Sketcher.Constraint("Equal", 5, 8),
    Sketcher.Constraint("Equal", 8, 11),
    Sketcher.Constraint("Symmetric", 2, 3, 8, 3, -1, 1),
    Sketcher.Constraint("Symmetric", 5, 3, 11, 3, -1, 1),
    Sketcher.Constraint("Symmetric", 5, 3, 8, 3, -2),
    Sketcher.Constraint("Radius", 2, 70.0),
    Sketcher.Constraint("DistanceX", 2, 3, -1, 1, 65.0),
    Sketcher.Constraint("DistanceY", 2, 3, -1, 1, 35.0),
])
pocket5 = body.newObject("PartDesign::Pocket", "Pocket004")
pocket5.Profile = sketch6
pocket5.Length = 10
pocket5.Reversed = True

sketch7 = body.newObject("Sketcher::SketchObject", "Sketch006")
sketch7.AttachmentSupport = (doc.getObject("XZ_Plane"), [""])
sketch7.MapMode = "FlatFace"
sketch7.AttachmentOffset = App.Placement(App.Vector(0, 0, -3), App.Rotation())
add_polygon(sketch7, [(-60, -20), (-60, 20), (-10, 20), (-10, -20)])
add_polygon(sketch7, [(60, -20), (60, 20), (110, 20), (110, -20)])
sketch7.addConstraint([
    Sketcher.Constraint("Vertical", 0),
    Sketcher.Constraint("Horizontal", 1),
    Sketcher.Constraint("Vertical", 2),
    Sketcher.Constraint("Horizontal", 3),
    Sketcher.Constraint("Vertical", 4),
    Sketcher.Constraint("Horizontal", 5),
    Sketcher.Constraint("Vertical", 6),
    Sketcher.Constraint("Horizontal", 7),
    Sketcher.Constraint("Symmetric", 3, 2, 4, 2, -1, 1),
    Sketcher.Constraint("Horizontal", 1, 2, 4, 2),
    Sketcher.Constraint("Horizontal", 3, 2, 6, 2),
    Sketcher.Constraint("Equal", 3, 5),
    Sketcher.Constraint("DistanceX", 1, 1, 1, 2, 50.0),
    Sketcher.Constraint("DistanceY", 0, 1, 0, 2, 40.0),
    Sketcher.Constraint("DistanceX", 0, 2, -1, 1, 60.0),
])
pocket6 = body.newObject("PartDesign::Pocket", "Pocket005")
pocket6.Profile = sketch7
pocket6.Length = 10
pocket6.Reversed = True
doc.recompute()

fillet = body.newObject("PartDesign::Fillet", "Fillet")
fillet.Base = (pocket6, edges_at(pocket6, [
    (-59.133, 1.5, -52.467),
    (-79.133, 1.5, -52.467),
    (-79.133, 1.5, -67.467),
    (-59.133, 1.5, -67.467),
    (79.133, 1.5, -67.467),
    (79.133, 1.5, -52.467),
    (59.133, 1.5, -52.467),
    (59.133, 1.5, -67.467),
    (59.133, 1.5, 52.467),
    (79.133, 1.5, 52.467),
    (79.133, 1.5, 67.467),
    (59.133, 1.5, 67.467),
    (-79.133, 1.5, 67.467),
    (-79.133, 1.5, 52.467),
    (-59.133, 1.5, 52.467),
    (-59.133, 1.5, 67.467),
    (15, 1.5, -60),
    (15, 1.5, -50),
    (-15, 1.5, -50),
    (-15, 1.5, -60),
    (-60, 1.5, 20),
    (-60, 1.5, -20),
    (-10, 1.5, -20),
    (-10, 1.5, 20),
    (110, 1.5, -20),
    (110, 1.5, 20),
    (60, 1.5, 20),
    (60, 1.5, -20),
]))
fillet.Radius = 2

doc.recompute()
